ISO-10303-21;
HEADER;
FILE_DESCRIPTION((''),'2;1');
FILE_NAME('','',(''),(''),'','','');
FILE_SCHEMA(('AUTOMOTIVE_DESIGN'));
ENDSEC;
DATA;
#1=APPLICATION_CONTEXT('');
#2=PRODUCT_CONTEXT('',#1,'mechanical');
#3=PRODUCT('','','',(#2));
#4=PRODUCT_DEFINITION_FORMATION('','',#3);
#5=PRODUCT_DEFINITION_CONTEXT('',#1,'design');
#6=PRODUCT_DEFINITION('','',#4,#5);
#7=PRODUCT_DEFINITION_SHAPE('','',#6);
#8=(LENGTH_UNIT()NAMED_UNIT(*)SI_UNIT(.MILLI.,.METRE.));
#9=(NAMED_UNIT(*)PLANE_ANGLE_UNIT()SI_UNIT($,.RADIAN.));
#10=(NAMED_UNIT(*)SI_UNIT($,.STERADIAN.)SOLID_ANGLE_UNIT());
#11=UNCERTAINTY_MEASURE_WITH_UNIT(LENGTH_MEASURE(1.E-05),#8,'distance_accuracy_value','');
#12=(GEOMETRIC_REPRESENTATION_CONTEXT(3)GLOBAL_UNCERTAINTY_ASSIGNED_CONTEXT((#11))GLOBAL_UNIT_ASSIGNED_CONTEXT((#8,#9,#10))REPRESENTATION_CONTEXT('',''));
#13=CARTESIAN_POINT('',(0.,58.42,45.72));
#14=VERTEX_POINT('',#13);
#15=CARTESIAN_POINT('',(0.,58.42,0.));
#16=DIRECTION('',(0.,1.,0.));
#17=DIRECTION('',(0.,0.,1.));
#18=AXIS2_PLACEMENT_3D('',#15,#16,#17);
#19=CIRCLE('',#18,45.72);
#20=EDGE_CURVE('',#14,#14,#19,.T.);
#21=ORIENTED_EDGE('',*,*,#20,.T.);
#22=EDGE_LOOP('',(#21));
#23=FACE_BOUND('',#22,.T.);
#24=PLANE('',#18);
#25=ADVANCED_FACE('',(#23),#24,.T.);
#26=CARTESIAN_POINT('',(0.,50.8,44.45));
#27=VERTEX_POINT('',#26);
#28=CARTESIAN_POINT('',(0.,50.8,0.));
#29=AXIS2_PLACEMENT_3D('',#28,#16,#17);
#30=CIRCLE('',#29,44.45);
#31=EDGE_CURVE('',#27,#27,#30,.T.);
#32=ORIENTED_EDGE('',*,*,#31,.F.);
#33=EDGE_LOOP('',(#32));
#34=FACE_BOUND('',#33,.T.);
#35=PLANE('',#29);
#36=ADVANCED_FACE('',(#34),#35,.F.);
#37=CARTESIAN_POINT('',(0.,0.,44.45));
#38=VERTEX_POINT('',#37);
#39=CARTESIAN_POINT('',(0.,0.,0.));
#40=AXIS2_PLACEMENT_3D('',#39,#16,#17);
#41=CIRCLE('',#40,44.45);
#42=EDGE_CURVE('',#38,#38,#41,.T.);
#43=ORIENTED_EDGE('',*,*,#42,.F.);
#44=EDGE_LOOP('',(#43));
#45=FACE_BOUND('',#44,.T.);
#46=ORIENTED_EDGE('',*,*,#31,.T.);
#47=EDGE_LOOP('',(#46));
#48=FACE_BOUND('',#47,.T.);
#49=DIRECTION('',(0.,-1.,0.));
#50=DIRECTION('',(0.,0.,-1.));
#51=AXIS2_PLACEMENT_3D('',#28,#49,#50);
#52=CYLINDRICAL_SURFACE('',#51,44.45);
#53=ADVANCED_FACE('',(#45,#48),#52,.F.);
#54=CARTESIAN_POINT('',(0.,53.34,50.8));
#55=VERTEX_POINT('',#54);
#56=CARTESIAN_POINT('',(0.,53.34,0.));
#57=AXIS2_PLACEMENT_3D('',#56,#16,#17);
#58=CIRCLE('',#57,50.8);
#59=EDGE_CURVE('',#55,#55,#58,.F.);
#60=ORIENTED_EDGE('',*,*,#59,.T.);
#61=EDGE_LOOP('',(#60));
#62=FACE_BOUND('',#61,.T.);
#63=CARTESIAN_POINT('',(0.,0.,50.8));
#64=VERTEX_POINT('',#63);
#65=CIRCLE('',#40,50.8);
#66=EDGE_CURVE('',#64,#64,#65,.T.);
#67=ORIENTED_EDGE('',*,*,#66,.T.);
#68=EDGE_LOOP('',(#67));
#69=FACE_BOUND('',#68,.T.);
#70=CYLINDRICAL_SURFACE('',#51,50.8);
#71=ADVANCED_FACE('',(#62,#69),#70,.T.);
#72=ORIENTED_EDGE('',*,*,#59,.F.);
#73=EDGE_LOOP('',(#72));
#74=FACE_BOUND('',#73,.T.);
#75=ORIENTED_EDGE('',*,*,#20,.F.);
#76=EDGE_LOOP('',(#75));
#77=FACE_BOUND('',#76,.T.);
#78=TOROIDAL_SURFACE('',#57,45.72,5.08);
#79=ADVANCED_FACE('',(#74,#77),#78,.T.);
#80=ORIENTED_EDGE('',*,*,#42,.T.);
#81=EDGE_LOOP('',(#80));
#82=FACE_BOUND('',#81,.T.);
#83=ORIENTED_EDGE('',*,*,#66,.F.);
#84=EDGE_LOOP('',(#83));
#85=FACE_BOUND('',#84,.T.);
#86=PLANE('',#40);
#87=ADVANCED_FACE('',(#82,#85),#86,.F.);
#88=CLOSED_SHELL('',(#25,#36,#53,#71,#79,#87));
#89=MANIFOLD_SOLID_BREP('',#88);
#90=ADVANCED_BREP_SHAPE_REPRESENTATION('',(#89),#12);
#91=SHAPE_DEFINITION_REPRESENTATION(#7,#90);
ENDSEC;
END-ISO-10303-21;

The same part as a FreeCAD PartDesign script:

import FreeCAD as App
import Part
import Sketcher
Q = App.Units.Quantity


def edges_at(feature, points):
    """Names of the edges that pass closest to the given points."""
    edges = feature.Shape.Edges
    near = lambda p: min(range(len(edges)), key=lambda i: edges[i].distToShape(Part.Vertex(*p))[0])
    return sorted({f"Edge{near(p) + 1}" for p in points})

doc = App.newDocument("Part")
body = doc.addObject("PartDesign::Body", "Body")

sketch1 = doc.addObject("Sketcher::SketchObject", "Sketch")
body.addObject(sketch1)
sketch1.AttachmentSupport = (doc.XZ_Plane, [""])
sketch1.MapMode = "FlatFace"
sketch1.addGeometry(Part.Circle(App.Vector(0, 0, 0), App.Vector(0, 0, 1), 50.8), False)
sketch1.addGeometry(Part.Circle(App.Vector(0, 0, 0), App.Vector(0, 0, 1), 44.45), False)
sketch1.addConstraint(Sketcher.Constraint("Coincident", 0, 3, -1, 1))
sketch1.addConstraint(Sketcher.Constraint("Coincident", 1, 3, -1, 1))
sketch1.addConstraint(Sketcher.Constraint("Diameter", 0, Q("4 in")))
sketch1.addConstraint(Sketcher.Constraint("Diameter", 1, Q("3.5 in")))
pad1 = doc.addObject("PartDesign::Pad", "Pad")
body.addObject(pad1)
pad1.Profile = sketch1
pad1.Length = Q("2 in")
pad1.Reversed = True

sketch2 = doc.addObject("Sketcher::SketchObject", "Sketch001")
body.addObject(sketch2)
sketch2.AttachmentSupport = (doc.XZ_Plane, [""])
sketch2.MapMode = "FlatFace"
sketch2.AttachmentOffset = App.Placement(App.Vector(0, 0, -2 * 25.4), App.Rotation())
sketch2.addGeometry(Part.Circle(App.Vector(0, 0, 0), App.Vector(0, 0, 1), 50.8), False)
sketch2.addConstraint(Sketcher.Constraint("Coincident", 0, 3, -1, 1))
sketch2.addConstraint(Sketcher.Constraint("Diameter", 0, Q("4 in")))
pad2 = doc.addObject("PartDesign::Pad", "Pad001")
body.addObject(pad2)
pad2.Profile = sketch2
pad2.Length = Q("0.3 in")
pad2.Reversed = True
doc.recompute()

fillet = doc.addObject("PartDesign::Fillet", "Fillet")
body.addObject(fillet)
fillet.Base = (pad2, edges_at(pad2, [(-50.8, 58.42, 0)]))
fillet.Radius = Q("0.2 in")

doc.recompute()
